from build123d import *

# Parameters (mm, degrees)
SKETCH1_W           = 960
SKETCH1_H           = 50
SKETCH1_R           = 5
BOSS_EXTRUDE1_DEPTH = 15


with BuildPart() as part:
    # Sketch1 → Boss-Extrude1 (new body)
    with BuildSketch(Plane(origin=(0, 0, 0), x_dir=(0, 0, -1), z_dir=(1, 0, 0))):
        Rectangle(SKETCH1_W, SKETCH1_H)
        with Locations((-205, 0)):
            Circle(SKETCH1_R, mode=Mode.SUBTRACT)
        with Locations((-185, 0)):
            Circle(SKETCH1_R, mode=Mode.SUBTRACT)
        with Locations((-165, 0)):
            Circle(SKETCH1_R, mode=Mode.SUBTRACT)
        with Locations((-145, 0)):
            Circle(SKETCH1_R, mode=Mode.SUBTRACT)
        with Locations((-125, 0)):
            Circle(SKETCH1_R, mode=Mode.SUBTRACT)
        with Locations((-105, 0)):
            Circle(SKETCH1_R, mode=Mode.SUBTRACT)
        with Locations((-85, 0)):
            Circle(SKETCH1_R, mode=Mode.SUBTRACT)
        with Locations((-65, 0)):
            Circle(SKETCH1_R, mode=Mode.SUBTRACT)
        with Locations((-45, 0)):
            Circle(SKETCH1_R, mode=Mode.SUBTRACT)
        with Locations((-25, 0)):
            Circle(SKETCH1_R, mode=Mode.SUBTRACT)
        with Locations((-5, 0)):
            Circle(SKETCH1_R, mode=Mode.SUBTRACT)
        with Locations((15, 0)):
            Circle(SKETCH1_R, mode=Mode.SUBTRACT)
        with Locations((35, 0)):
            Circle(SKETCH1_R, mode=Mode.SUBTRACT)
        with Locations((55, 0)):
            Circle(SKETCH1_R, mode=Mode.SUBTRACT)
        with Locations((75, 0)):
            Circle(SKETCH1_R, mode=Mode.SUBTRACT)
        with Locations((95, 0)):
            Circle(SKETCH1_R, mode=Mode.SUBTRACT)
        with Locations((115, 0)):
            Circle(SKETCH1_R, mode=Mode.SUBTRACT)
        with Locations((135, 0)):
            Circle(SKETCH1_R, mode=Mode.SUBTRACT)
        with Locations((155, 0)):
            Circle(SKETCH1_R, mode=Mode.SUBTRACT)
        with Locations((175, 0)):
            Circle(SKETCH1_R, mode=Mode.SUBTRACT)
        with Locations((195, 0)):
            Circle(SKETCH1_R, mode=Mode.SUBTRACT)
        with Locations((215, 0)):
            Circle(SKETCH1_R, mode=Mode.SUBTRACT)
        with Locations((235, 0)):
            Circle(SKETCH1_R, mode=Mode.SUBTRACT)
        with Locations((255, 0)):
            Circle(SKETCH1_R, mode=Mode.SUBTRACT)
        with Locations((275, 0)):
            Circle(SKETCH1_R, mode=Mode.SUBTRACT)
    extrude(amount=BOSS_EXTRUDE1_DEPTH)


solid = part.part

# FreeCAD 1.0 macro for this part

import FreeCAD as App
import Part
import Sketcher
Q = App.Units.Quantity


def add_polygon(sketch, points):
    """Adds a closed chain of lines whose ends are joined by coincident constraints."""
    first, n = sketch.GeometryCount, len(points)
    for a, b in zip(points, points[1:] + points[:1]):
        sketch.addGeometry(Part.LineSegment(App.Vector(*a, 0), App.Vector(*b, 0)), False)
    for i in range(n):
        sketch.addConstraint(Sketcher.Constraint("Coincident", first + i, 2, first + (i + 1) % n, 1))

doc = App.newDocument("Part")
body = doc.addObject("PartDesign::Body", "Body")

sketch1 = doc.addObject("Sketcher::SketchObject", "Sketch")
body.addObject(sketch1)
sketch1.AttachmentSupport = (doc.YZ_Plane, [""])
sketch1.MapMode = "FlatFace"
add_polygon(sketch1, [(25, 480), (-25, 480), (-25, -480), (25, -480)])
sketch1.addGeometry(Part.Circle(App.Vector(0, 205, 0), App.Vector(0, 0, 1), 5), False)
sketch1.addGeometry(Part.Circle(App.Vector(0, 185, 0), App.Vector(0, 0, 1), 5), False)
sketch1.addGeometry(Part.Circle(App.Vector(0, 165, 0), App.Vector(0, 0, 1), 5), False)
sketch1.addGeometry(Part.Circle(App.Vector(0, 145, 0), App.Vector(0, 0, 1), 5), False)
sketch1.addGeometry(Part.Circle(App.Vector(0, 125, 0), App.Vector(0, 0, 1), 5), False)
sketch1.addGeometry(Part.Circle(App.Vector(0, 105, 0), App.Vector(0, 0, 1), 5), False)
sketch1.addGeometry(Part.Circle(App.Vector(0, 85, 0), App.Vector(0, 0, 1), 5), False)
sketch1.addGeometry(Part.Circle(App.Vector(0, 65, 0), App.Vector(0, 0, 1), 5), False)
sketch1.addGeometry(Part.Circle(App.Vector(0, 45, 0), App.Vector(0, 0, 1), 5), False)
sketch1.addGeometry(Part.Circle(App.Vector(0, 25, 0), App.Vector(0, 0, 1), 5), False)
sketch1.addGeometry(Part.Circle(App.Vector(0, 5, 0), App.Vector(0, 0, 1), 5), False)
sketch1.addGeometry(Part.Circle(App.Vector(0, -15, 0), App.Vector(0, 0, 1), 5), False)
sketch1.addGeometry(Part.Circle(App.Vector(0, -35, 0), App.Vector(0, 0, 1), 5), False)
sketch1.addGeometry(Part.Circle(App.Vector(0, -55, 0), App.Vector(0, 0, 1), 5), False)
sketch1.addGeometry(Part.Circle(App.Vector(0, -75, 0), App.Vector(0, 0, 1), 5), False)
sketch1.addGeometry(Part.Circle(App.Vector(0, -95, 0), App.Vector(0, 0, 1), 5), False)
sketch1.addGeometry(Part.Circle(App.Vector(0, -115, 0), App.Vector(0, 0, 1), 5), False)
sketch1.addGeometry(Part.Circle(App.Vector(0, -135, 0), App.Vector(0, 0, 1), 5), False)
sketch1.addGeometry(Part.Circle(App.Vector(0, -155, 0), App.Vector(0, 0, 1), 5), False)
sketch1.addGeometry(Part.Circle(App.Vector(0, -175, 0), App.Vector(0, 0, 1), 5), False)
sketch1.addGeometry(Part.Circle(App.Vector(0, -195, 0), App.Vector(0, 0, 1), 5), False)
sketch1.addGeometry(Part.Circle(App.Vector(0, -215, 0), App.Vector(0, 0, 1), 5), False)
sketch1.addGeometry(Part.Circle(App.Vector(0, -235, 0), App.Vector(0, 0, 1), 5), False)
sketch1.addGeometry(Part.Circle(App.Vector(0, -255, 0), App.Vector(0, 0, 1), 5), False)
sketch1.addGeometry(Part.Circle(App.Vector(0, -275, 0), App.Vector(0, 0, 1), 5), False)
sketch1.addConstraint([
    Sketcher.Constraint("Horizontal", 0),
    Sketcher.Constraint("Vertical", 1),
    Sketcher.Constraint("Horizontal", 2),
    Sketcher.Constraint("Vertical", 3),
    Sketcher.Constraint("Equal", 4, 5),
    Sketcher.Constraint("Equal", 5, 6),
    Sketcher.Constraint("Equal", 6, 7),
    Sketcher.Constraint("Equal", 7, 8),
    Sketcher.Constraint("Equal", 8, 9),
    Sketcher.Constraint("Equal", 9, 10),
    Sketcher.Constraint("Equal", 10, 11),
    Sketcher.Constraint("Equal", 11, 12),
    Sketcher.Constraint("Equal", 12, 13),
    Sketcher.Constraint("Equal", 13, 14),
    Sketcher.Constraint("Equal", 14, 15),
    Sketcher.Constraint("Equal", 15, 16),
    Sketcher.Constraint("Equal", 16, 17),
    Sketcher.Constraint("Equal", 17, 18),
    Sketcher.Constraint("Equal", 18, 19),
    Sketcher.Constraint("Equal", 19, 20),
    Sketcher.Constraint("Equal", 20, 21),
    Sketcher.Constraint("Equal", 21, 22),
    Sketcher.Constraint("Equal", 22, 23),
    Sketcher.Constraint("Equal", 23, 24),
    Sketcher.Constraint("Equal", 24, 25),
    Sketcher.Constraint("Equal", 25, 26),
    Sketcher.Constraint("Equal", 26, 27),
    Sketcher.Constraint("Equal", 27, 28),
    Sketcher.Constraint("Symmetric", 0, 2, 2, 2, -1, 1),
    Sketcher.Constraint("PointOnObject", 4, 3, -2),
    Sketcher.Constraint("PointOnObject", 5, 3, -2),
    Sketcher.Constraint("PointOnObject", 6, 3, -2),
    Sketcher.Constraint("PointOnObject", 7, 3, -2),
    Sketcher.Constraint("PointOnObject", 8, 3, -2),
    Sketcher.Constraint("PointOnObject", 9, 3, -2),
    Sketcher.Constraint("PointOnObject", 10, 3, -2),
    Sketcher.Constraint("PointOnObject", 11, 3, -2),
    Sketcher.Constraint("PointOnObject", 12, 3, -2),
    Sketcher.Constraint("PointOnObject", 13, 3, -2),
    Sketcher.Constraint("PointOnObject", 14, 3, -2),
    Sketcher.Constraint("PointOnObject", 15, 3, -2),
    Sketcher.Constraint("PointOnObject", 16, 3, -2),
    Sketcher.Constraint("PointOnObject", 17, 3, -2),
    Sketcher.Constraint("PointOnObject", 18, 3, -2),
    Sketcher.Constraint("PointOnObject", 19, 3, -2),
    Sketcher.Constraint("PointOnObject", 20, 3, -2),
    Sketcher.Constraint("PointOnObject", 21, 3, -2),
    Sketcher.Constraint("PointOnObject", 22, 3, -2),
    Sketcher.Constraint("PointOnObject", 23, 3, -2),
    Sketcher.Constraint("PointOnObject", 24, 3, -2),
    Sketcher.Constraint("PointOnObject", 25, 3, -2),
    Sketcher.Constraint("PointOnObject", 26, 3, -2),
    Sketcher.Constraint("PointOnObject", 27, 3, -2),
    Sketcher.Constraint("PointOnObject", 28, 3, -2),
    Sketcher.Constraint("Diameter", 4, Q("10 mm")),
    Sketcher.Constraint("DistanceX", 0, 2, 0, 1, Q("50 mm")),
    Sketcher.Constraint("DistanceY", 1, 2, 1, 1, Q("960 mm")),
    Sketcher.Constraint("DistanceY", -1, 1, 4, 3, Q("205 mm")),
    Sketcher.Constraint("DistanceY", -1, 1, 5, 3, Q("185 mm")),
    Sketcher.Constraint("DistanceY", -1, 1, 6, 3, Q("165 mm")),
    Sketcher.Constraint("DistanceY", -1, 1, 7, 3, Q("145 mm")),
    Sketcher.Constraint("DistanceY", -1, 1, 8, 3, Q("125 mm")),
    Sketcher.Constraint("DistanceY", -1, 1, 9, 3, Q("105 mm")),
    Sketcher.Constraint("DistanceY", -1, 1, 10, 3, Q("85 mm")),
    Sketcher.Constraint("DistanceY", -1, 1, 11, 3, Q("65 mm")),
    Sketcher.Constraint("DistanceY", -1, 1, 12, 3, Q("45 mm")),
    Sketcher.Constraint("DistanceY", -1, 1, 13, 3, Q("25 mm")),
    Sketcher.Constraint("DistanceY", -1, 1, 14, 3, Q("5 mm")),
    Sketcher.Constraint("DistanceY", 15, 3, -1, 1, Q("15 mm")),
    Sketcher.Constraint("DistanceY", 16, 3, -1, 1, Q("35 mm")),
    Sketcher.Constraint("DistanceY", 17, 3, -1, 1, Q("55 mm")),
    Sketcher.Constraint("DistanceY", 18, 3, -1, 1, Q("75 mm")),
    Sketcher.Constraint("DistanceY", 19, 3, -1, 1, Q("95 mm")),
    Sketcher.Constraint("DistanceY", 20, 3, -1, 1, Q("115 mm")),
    Sketcher.Constraint("DistanceY", 21, 3, -1, 1, Q("135 mm")),
    Sketcher.Constraint("DistanceY", 22, 3, -1, 1, Q("155 mm")),
    Sketcher.Constraint("DistanceY", 23, 3, -1, 1, Q("175 mm")),
    Sketcher.Constraint("DistanceY", 24, 3, -1, 1, Q("195 mm")),
    Sketcher.Constraint("DistanceY", 25, 3, -1, 1, Q("215 mm")),
    Sketcher.Constraint("DistanceY", 26, 3, -1, 1, Q("235 mm")),
    Sketcher.Constraint("DistanceY", 27, 3, -1, 1, Q("255 mm")),
    Sketcher.Constraint("DistanceY", 28, 3, -1, 1, Q("275 mm")),
])
pad1 = doc.addObject("PartDesign::Pad", "Pad")
body.addObject(pad1)
pad1.Profile = sketch1
pad1.Length = 15

doc.recompute()
